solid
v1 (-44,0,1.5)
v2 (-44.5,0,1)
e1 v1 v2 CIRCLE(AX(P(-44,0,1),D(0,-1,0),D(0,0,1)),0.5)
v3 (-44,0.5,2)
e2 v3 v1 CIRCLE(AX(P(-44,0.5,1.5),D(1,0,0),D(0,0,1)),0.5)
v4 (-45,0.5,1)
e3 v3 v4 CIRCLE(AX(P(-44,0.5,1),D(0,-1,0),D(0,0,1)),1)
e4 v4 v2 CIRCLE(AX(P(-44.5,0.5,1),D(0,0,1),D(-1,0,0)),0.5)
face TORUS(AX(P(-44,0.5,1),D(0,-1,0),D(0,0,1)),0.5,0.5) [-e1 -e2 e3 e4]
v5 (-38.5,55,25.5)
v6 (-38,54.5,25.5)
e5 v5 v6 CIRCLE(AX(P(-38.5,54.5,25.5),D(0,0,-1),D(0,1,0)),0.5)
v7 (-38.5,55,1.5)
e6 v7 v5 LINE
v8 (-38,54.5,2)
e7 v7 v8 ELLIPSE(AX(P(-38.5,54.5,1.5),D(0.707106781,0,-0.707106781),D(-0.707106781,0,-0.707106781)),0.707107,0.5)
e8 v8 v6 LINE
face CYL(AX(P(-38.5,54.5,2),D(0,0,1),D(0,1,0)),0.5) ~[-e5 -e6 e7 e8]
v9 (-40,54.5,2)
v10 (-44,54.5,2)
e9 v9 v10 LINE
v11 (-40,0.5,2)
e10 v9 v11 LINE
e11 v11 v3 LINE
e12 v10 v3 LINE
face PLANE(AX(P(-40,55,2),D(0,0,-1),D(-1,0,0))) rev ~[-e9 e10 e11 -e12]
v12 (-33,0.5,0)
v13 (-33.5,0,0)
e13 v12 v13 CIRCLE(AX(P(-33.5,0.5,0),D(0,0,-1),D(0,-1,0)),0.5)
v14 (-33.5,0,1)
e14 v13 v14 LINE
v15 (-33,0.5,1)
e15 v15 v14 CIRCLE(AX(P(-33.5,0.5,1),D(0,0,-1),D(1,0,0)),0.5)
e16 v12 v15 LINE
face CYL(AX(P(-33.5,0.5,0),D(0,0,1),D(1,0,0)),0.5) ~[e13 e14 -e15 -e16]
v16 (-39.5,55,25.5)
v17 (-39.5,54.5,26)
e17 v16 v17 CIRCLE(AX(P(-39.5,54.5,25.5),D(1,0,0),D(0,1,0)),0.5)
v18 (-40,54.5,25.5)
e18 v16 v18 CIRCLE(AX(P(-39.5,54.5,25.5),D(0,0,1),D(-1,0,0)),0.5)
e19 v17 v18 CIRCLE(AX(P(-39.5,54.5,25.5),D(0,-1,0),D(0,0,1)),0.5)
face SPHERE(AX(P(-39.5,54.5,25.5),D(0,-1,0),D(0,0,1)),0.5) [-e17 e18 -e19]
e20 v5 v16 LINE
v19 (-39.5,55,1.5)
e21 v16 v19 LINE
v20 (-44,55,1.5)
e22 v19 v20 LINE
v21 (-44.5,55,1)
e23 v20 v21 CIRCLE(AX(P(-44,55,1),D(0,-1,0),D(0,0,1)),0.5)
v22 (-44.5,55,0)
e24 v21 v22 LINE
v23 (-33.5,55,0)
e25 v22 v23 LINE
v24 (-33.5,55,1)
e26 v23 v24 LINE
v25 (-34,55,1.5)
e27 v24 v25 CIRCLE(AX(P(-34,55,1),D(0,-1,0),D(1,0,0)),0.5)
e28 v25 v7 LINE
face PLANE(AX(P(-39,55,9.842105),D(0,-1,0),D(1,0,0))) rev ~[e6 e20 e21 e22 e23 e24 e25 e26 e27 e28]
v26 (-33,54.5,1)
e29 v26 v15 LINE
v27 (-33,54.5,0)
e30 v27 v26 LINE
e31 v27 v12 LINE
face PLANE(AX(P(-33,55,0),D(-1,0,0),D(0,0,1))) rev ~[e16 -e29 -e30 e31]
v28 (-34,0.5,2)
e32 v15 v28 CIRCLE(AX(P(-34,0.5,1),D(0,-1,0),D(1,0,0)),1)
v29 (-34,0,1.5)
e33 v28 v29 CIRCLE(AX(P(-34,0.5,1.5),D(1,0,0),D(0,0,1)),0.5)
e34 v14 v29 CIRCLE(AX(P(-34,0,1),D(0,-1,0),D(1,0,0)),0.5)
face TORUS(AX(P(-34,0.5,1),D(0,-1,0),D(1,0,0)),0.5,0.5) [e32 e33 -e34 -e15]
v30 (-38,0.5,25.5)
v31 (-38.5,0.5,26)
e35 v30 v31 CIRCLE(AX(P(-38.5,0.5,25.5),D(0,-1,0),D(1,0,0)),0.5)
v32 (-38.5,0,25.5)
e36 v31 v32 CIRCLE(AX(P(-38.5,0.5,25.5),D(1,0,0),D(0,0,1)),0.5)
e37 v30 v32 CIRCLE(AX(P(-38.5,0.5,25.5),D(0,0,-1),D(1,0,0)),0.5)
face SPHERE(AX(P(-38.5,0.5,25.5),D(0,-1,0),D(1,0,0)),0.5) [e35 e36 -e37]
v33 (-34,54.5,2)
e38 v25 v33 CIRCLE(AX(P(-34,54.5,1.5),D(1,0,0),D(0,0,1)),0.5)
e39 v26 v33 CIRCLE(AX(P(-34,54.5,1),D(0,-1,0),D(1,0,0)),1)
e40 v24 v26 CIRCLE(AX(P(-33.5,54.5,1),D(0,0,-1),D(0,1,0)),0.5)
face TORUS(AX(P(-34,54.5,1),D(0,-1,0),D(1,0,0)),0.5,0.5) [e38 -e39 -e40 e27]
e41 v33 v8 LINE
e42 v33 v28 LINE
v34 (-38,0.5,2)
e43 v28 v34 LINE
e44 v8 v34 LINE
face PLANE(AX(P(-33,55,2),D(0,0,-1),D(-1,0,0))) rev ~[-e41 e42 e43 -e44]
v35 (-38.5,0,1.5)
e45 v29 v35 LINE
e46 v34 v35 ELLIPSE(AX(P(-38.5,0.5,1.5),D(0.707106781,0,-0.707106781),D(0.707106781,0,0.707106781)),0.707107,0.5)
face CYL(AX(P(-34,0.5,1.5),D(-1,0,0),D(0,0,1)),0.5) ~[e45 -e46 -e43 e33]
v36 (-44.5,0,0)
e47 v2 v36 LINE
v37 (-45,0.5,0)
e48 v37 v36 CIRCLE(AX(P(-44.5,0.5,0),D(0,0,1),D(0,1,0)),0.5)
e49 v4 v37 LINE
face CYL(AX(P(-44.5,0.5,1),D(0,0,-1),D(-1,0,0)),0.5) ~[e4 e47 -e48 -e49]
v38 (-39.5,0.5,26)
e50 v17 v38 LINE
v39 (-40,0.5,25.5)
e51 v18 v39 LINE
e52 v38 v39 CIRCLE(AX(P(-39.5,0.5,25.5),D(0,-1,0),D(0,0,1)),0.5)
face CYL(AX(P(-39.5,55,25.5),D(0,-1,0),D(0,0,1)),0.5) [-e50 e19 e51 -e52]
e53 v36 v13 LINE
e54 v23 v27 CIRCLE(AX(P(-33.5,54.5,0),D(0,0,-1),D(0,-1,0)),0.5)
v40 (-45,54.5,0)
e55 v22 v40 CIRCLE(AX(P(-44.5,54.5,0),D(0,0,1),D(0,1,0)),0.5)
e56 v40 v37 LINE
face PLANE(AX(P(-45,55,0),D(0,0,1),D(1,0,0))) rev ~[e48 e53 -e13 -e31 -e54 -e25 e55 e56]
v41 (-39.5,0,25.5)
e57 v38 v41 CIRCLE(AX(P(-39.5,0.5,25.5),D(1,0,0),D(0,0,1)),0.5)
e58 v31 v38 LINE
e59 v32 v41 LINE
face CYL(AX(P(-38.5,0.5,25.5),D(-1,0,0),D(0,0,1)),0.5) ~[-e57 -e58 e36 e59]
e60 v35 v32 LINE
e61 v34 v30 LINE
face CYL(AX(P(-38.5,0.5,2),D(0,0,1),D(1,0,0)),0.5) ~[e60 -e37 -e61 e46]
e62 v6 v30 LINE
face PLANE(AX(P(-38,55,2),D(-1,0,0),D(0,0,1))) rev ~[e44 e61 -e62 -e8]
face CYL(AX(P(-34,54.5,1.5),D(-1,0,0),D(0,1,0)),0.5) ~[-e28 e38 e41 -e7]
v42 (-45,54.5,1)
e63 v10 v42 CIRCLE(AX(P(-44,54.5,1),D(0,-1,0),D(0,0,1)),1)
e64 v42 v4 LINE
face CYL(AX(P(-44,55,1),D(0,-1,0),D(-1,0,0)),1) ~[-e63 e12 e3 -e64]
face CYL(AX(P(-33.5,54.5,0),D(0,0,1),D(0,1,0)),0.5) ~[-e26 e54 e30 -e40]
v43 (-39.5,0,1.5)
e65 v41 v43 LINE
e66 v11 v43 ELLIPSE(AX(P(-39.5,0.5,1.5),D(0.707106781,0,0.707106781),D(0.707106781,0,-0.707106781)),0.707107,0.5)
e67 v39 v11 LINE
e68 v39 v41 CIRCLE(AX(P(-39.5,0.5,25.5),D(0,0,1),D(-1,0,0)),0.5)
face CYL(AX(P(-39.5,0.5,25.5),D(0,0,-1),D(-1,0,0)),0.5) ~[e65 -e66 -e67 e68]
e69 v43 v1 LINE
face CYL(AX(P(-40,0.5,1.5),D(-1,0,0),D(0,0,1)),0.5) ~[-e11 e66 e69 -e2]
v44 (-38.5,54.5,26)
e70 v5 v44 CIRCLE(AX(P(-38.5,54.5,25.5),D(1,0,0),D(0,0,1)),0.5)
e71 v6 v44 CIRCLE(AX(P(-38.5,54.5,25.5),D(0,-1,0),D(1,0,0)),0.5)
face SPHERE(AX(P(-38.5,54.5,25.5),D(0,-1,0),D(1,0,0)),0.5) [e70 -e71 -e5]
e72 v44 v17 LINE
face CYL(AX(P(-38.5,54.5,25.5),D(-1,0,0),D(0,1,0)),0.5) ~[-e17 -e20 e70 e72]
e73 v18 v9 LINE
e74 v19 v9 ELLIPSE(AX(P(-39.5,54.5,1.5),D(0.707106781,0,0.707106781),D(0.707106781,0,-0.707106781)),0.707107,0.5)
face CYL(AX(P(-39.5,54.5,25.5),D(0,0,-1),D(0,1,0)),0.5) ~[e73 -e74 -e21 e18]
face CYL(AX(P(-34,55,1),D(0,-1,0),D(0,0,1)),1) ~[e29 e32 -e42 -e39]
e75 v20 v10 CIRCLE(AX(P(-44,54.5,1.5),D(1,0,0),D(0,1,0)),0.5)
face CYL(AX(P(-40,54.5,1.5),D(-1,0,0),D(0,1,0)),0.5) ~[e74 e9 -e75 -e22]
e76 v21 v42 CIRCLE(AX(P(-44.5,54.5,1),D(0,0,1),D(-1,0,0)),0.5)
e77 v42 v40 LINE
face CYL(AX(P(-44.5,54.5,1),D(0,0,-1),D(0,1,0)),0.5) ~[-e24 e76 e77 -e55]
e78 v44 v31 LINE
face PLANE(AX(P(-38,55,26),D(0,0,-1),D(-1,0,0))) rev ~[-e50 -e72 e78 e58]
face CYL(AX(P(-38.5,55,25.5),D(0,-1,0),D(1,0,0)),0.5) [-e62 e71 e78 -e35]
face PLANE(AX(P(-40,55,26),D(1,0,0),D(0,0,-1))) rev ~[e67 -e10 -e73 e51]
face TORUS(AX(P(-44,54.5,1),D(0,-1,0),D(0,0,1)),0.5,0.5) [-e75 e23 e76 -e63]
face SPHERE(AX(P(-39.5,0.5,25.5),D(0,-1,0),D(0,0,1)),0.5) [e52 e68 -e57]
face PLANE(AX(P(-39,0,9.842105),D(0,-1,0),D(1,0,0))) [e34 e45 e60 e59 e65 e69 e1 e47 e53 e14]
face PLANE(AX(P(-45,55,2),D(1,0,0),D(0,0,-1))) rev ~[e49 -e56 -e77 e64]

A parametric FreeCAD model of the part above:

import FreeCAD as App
import Part
import Sketcher
from FreeCAD import Vector


def edges_at(feature, points):
    """Names of the edges that pass closest to the given points."""
    edges = feature.Shape.Edges
    near = lambda p: min(range(len(edges)), key=lambda i: edges[i].distToShape(Part.Vertex(*p))[0])
    return sorted({f"Edge{near(p) + 1}" for p in points})

doc = App.newDocument("Part")
params = doc.addObject("Spreadsheet::Sheet", "Params")
for row, (alias, value) in enumerate([
    ("sketch1_width", "12 mm"),
    ("sketch1_width2", "5 mm"),
    ("sketch1_height", "24 mm"),
    ("pad1_length", "55 mm"),
    ("fillet_radius", "0.5 mm"),
    ("fillet2_radius", "1 mm"),
    ("fillet3_radius", "0.5 mm"),
    ("fillet4_radius", "0.5 mm"),
], start=1):
    params.set(f"A{row}", alias)
    params.set(f"B{row}", "=" + value)
    params.setAlias(f"B{row}", alias)

body = doc.addObject("PartDesign::Body", "Body")

# Sketch on XZ plane
sketch1 = doc.addObject("Sketcher::SketchObject", "Sketch")
body.addObject(sketch1)
sketch1.AttachmentSupport = (doc.XZ_Plane, [""])
sketch1.MapMode = "FlatFace"
sketch1.addGeometry([
    Part.LineSegment(Vector(0, 0, 0), Vector(12, 0, 0)),  # 0
    Part.LineSegment(Vector(12, 0, 0), Vector(12, 2, 0)),  # 1
    Part.LineSegment(Vector(12, 2, 0), Vector(7, 2, 0)),  # 2
    Part.LineSegment(Vector(7, 2, 0), Vector(7, 26, 0)),  # 3
    Part.LineSegment(Vector(7, 26, 0), Vector(5, 26, 0)),  # 4
    Part.LineSegment(Vector(5, 26, 0), Vector(5, 2, 0)),  # 5
    Part.LineSegment(Vector(5, 2, 0), Vector(0, 2, 0)),  # 6
    Part.LineSegment(Vector(0, 2, 0), Vector(0, 0, 0)),  # 7
], False)
sketch1.addConstraint([
    Sketcher.Constraint("Coincident", 0, 2, 1, 1),
    Sketcher.Constraint("Coincident", 1, 2, 2, 1),
    Sketcher.Constraint("Coincident", 2, 2, 3, 1),
    Sketcher.Constraint("Coincident", 3, 2, 4, 1),
    Sketcher.Constraint("Coincident", 4, 2, 5, 1),
    Sketcher.Constraint("Coincident", 5, 2, 6, 1),
    Sketcher.Constraint("Coincident", 6, 2, 7, 1),
    Sketcher.Constraint("Coincident", 7, 2, 0, 1),
    Sketcher.Constraint("Horizontal", 0),
    Sketcher.Constraint("Vertical", 1),
    Sketcher.Constraint("Horizontal", 2),
    Sketcher.Constraint("Vertical", 3),
    Sketcher.Constraint("Horizontal", 4),
    Sketcher.Constraint("Vertical", 5),
    Sketcher.Constraint("Horizontal", 6),
    Sketcher.Constraint("Vertical", 7),
    Sketcher.Constraint("Coincident", 7, 2, -1, 1),
    Sketcher.Constraint("Horizontal", 2, 2, 5, 2),
    Sketcher.Constraint("Equal", 2, 6),
    Sketcher.Constraint("Equal", 4, 1),
    Sketcher.Constraint("DistanceX", 0, 1, 0, 2, 12.0),
    Sketcher.Constraint("DistanceX", 2, 2, 2, 1, 5.0),
    Sketcher.Constraint("DistanceY", 3, 1, 3, 2, 24.0),
])
sketch1.setExpression("Constraints[20]", "Params.sketch1_width")
sketch1.setExpression("Constraints[21]", "Params.sketch1_width2")
sketch1.setExpression("Constraints[22]", "Params.sketch1_height")
pad1 = doc.addObject("PartDesign::Pad", "Pad")
body.addObject(pad1)
pad1.Profile = sketch1
pad1.setExpression("Length", "Params.pad1_length")
doc.recompute()

fillet = doc.addObject("PartDesign::Fillet", "Fillet")
body.addObject(fillet)
fillet.Base = (pad1, edges_at(pad1, [(5, -27.5, 26), (7, -27.5, 26)]))
fillet.setExpression("Radius", "Params.fillet_radius")
doc.recompute()

fillet2 = doc.addObject("PartDesign::Fillet", "Fillet001")
body.addObject(fillet2)
fillet2.Base = (fillet, edges_at(fillet, [(0, -27.5, 2), (12, -27.5, 2)]))
fillet2.setExpression("Radius", "Params.fillet2_radius")
doc.recompute()

fillet3 = doc.addObject("PartDesign::Fillet", "Fillet002")
body.addObject(fillet3)
fillet3.Base = (fillet2, edges_at(fillet2, [
    (5, -55, 13.75),
    (5.146, -55, 25.854),
    (6, -55, 26),
    (6.854, -55, 25.854),
    (7, -55, 13.75),
    (3, -55, 2),
    (0.293, -55, 1.707),
    (0, -55, 0.5),
    (9, -55, 2),
    (11.707, -55, 1.707),
    (12, -55, 0.5),
]))
fillet3.setExpression("Radius", "Params.fillet3_radius")
doc.recompute()

fillet4 = doc.addObject("PartDesign::Fillet", "Fillet003")
body.addObject(fillet4)
fillet4.Base = (fillet3, edges_at(fillet3, [
    (12, 0, 0.5),
    (11.707, 0, 1.707),
    (9, 0, 2),
    (7, 0, 13.75),
    (6.854, 0, 25.854),
    (6, 0, 26),
    (5.146, 0, 25.854),
    (5, 0, 13.75),
    (3, 0, 2),
    (0.293, 0, 1.707),
    (0, 0, 0.5),
]))
fillet4.setExpression("Radius", "Params.fillet4_radius")
body2 = doc.addObject("PartDesign::Body", "Body001")
doc.recompute()

body.Placement = App.Placement(Vector(-45, 55, 0), App.Rotation(Vector(0, 0, 1), 0))
boolean = doc.addObject("PartDesign::Boolean", "Boolean")
body2.addObject(boolean)
boolean.Type = "Fuse"
boolean.addObjects([body])

doc.recompute()
